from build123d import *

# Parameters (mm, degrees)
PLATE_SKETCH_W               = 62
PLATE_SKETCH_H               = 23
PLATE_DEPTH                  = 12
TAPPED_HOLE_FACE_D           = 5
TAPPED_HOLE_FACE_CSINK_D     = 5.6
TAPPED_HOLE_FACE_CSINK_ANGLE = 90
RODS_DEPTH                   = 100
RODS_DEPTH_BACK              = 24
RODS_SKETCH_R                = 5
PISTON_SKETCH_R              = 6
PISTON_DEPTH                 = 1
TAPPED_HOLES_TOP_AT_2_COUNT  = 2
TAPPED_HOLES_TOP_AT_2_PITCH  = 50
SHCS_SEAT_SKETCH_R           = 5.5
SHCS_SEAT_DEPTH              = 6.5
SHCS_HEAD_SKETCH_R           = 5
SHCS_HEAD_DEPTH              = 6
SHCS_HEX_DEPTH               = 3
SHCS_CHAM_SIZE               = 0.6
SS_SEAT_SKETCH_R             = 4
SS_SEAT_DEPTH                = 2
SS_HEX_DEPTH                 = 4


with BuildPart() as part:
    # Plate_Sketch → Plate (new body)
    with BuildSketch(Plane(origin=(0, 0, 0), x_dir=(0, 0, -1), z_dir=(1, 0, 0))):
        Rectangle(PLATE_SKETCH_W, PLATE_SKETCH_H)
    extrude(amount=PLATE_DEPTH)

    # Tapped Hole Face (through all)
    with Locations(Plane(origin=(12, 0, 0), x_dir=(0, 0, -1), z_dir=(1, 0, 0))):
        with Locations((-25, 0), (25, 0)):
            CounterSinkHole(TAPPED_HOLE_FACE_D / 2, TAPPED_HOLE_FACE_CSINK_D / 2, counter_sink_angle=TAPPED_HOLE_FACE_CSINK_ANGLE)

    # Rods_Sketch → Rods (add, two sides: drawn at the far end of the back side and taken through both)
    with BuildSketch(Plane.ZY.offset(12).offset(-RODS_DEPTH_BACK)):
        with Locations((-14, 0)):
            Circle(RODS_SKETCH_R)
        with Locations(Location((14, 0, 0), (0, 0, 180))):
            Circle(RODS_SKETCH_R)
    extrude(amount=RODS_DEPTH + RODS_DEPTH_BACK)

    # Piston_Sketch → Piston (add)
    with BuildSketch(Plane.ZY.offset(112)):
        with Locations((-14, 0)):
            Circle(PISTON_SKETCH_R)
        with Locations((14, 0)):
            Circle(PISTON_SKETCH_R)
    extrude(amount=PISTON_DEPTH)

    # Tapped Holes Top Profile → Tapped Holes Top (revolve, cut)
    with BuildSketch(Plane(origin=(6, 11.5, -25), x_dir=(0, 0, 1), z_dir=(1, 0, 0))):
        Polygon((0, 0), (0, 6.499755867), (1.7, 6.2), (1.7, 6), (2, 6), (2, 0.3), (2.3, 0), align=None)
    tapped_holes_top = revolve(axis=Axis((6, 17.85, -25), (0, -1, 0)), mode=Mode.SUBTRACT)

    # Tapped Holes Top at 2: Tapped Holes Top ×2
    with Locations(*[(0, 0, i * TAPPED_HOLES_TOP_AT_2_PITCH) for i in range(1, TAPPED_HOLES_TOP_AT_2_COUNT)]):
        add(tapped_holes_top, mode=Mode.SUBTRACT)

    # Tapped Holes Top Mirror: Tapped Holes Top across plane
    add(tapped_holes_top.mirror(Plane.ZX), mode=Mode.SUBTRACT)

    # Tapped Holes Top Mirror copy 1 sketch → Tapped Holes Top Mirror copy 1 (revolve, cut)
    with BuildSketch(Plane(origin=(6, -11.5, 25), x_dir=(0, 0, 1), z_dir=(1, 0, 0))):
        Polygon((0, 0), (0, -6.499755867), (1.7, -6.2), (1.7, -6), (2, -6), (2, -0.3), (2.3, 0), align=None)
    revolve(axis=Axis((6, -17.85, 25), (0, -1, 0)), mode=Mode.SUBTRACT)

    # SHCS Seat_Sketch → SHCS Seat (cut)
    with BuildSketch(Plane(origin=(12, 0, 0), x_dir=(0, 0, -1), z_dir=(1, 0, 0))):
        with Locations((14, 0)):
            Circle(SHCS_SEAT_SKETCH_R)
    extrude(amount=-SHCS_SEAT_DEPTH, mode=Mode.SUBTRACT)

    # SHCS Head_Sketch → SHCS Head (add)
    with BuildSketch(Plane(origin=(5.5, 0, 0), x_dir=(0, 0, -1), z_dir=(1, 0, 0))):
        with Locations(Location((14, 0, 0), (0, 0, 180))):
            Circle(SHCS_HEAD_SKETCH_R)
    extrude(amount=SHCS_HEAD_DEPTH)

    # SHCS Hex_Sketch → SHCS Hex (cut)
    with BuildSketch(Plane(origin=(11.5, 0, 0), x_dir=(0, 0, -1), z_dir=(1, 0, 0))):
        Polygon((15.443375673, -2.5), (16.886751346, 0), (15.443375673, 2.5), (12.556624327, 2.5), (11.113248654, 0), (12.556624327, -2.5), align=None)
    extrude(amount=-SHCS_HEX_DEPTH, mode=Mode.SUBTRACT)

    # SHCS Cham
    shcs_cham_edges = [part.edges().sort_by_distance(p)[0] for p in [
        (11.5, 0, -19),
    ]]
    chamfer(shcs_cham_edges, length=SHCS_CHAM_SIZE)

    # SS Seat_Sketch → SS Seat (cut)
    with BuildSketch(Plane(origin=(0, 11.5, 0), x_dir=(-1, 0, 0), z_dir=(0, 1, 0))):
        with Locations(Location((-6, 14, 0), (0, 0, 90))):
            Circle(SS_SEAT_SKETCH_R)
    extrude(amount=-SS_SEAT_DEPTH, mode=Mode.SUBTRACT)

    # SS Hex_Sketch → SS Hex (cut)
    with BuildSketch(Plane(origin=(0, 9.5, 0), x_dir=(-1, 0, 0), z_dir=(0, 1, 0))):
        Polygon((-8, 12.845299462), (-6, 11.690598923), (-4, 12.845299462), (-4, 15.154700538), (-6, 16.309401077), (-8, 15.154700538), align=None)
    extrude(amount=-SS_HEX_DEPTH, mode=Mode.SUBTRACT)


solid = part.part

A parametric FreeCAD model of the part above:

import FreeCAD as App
import Part
import Sketcher
from FreeCAD import Vector
Q = App.Units.Quantity


def edges_at(feature, points):
    """Names of the edges that pass closest to the given points."""
    edges = feature.Shape.Edges
    near = lambda p: min(range(len(edges)), key=lambda i: edges[i].distToShape(Part.Vertex(*p))[0])
    return sorted({f"Edge{near(p) + 1}" for p in points})

doc = App.newDocument("Part")
body = doc.addObject("PartDesign::Body", "Body")

# Sketch on YZ plane
sketch1 = doc.addObject("Sketcher::SketchObject", "Sketch")
body.addObject(sketch1)
sketch1.AttachmentSupport = (doc.YZ_Plane, [""])
sketch1.MapMode = "FlatFace"
sketch1.addGeometry([
    Part.LineSegment(Vector(12, 31, 0), Vector(-12, 31, 0)),
    Part.LineSegment(Vector(-12, 31, 0), Vector(-12, -31, 0)),
    Part.LineSegment(Vector(-12, -31, 0), Vector(12, -31, 0)),
    Part.LineSegment(Vector(12, -31, 0), Vector(12, 31, 0)),
], False)
sketch1.addConstraint([
    Sketcher.Constraint("Coincident", 0, 2, 1, 1),
    Sketcher.Constraint("Coincident", 1, 2, 2, 1),
    Sketcher.Constraint("Coincident", 2, 2, 3, 1),
    Sketcher.Constraint("Coincident", 3, 2, 0, 1),
    Sketcher.Constraint("Horizontal", 0),
    Sketcher.Constraint("Vertical", 1),
    Sketcher.Constraint("Horizontal", 2),
    Sketcher.Constraint("Vertical", 3),
    Sketcher.Constraint("Symmetric", 0, 2, 2, 2, -1, 1),
    Sketcher.Constraint("DistanceX", 0, 2, 0, 1, 23.0),
    Sketcher.Constraint("DistanceY", 1, 2, 1, 1, 62.0),
])
pad1 = doc.addObject("PartDesign::Pad", "Pad")
body.addObject(pad1)
pad1.Profile = sketch1
pad1.Length = 12

# Sketch on YZ plane
sketch2 = doc.addObject("Sketcher::SketchObject", "Sketch001")
body.addObject(sketch2)
sketch2.AttachmentSupport = (doc.YZ_Plane, [""])
sketch2.MapMode = "FlatFace"
sketch2.AttachmentOffset = App.Placement(Vector(0, 0, 12), App.Rotation())
sketch2.addGeometry([
    Part.Circle(Vector(0, 25, 0), Vector(0, 0, 1), 2.5),
    Part.Circle(Vector(0, -25, 0), Vector(0, 0, 1), 2.5),
], False)
sketch2.addConstraint([
    Sketcher.Constraint("Equal", 0, 1),
    Sketcher.Constraint("Symmetric", 0, 3, 1, 3, -1, 1),
    Sketcher.Constraint("PointOnObject", 0, 3, -2),
    Sketcher.Constraint("Diameter", 0, 5.0),
    Sketcher.Constraint("DistanceY", -1, 1, 0, 3, 25.0),
])
doc.recompute()
hole = doc.addObject("PartDesign::Hole", "Hole")
body.addObject(hole)
hole.Profile = sketch2
hole.ThreadType = "None"
hole.Diameter = 5
hole.DepthType = "ThroughAll"
hole.HoleCutType = "Countersink"
hole.HoleCutDiameter = 5.6
hole.HoleCutCountersinkAngle = 90

# Sketch on YZ plane
sketch3 = doc.addObject("Sketcher::SketchObject", "Sketch002")
body.addObject(sketch3)
sketch3.AttachmentSupport = (doc.YZ_Plane, [""])
sketch3.MapMode = "FlatFace"
sketch3.AttachmentOffset = App.Placement(Vector(0, 0, -12), App.Rotation())
sketch3.addGeometry([
    Part.Circle(Vector(0, -14, 0), Vector(0, 0, 1), 5),
    Part.Circle(Vector(0, 14, 0), Vector(0, 0, 1), 5),
], False)
sketch3.addConstraint([
    Sketcher.Constraint("Equal", 0, 1),
    Sketcher.Constraint("Symmetric", 0, 3, 1, 3, -1, 1),
    Sketcher.Constraint("PointOnObject", 0, 3, -2),
    Sketcher.Constraint("Diameter", 0, 10.0),
    Sketcher.Constraint("DistanceY", 0, 3, -1, 1, 14.0),
])
pad2 = doc.addObject("PartDesign::Pad", "Pad001")
body.addObject(pad2)
pad2.Profile = sketch3
pad2.Type = "TwoLengths"
pad2.Length = 100
pad2.Length2 = 24
pad2.Reversed = True

# Sketch on YZ plane
sketch4 = doc.addObject("Sketcher::SketchObject", "Sketch003")
body.addObject(sketch4)
sketch4.AttachmentSupport = (doc.YZ_Plane, [""])
sketch4.MapMode = "FlatFace"
sketch4.AttachmentOffset = App.Placement(Vector(0, 0, -112), App.Rotation())
sketch4.addGeometry([
    Part.Circle(Vector(0, -14, 0), Vector(0, 0, 1), 6),
    Part.Circle(Vector(0, 14, 0), Vector(0, 0, 1), 6),
], False)
sketch4.addConstraint([
    Sketcher.Constraint("Equal", 0, 1),
    Sketcher.Constraint("Symmetric", 0, 3, 1, 3, -1, 1),
    Sketcher.Constraint("PointOnObject", 0, 3, -2),
    Sketcher.Constraint("Diameter", 0, 12.0),
    Sketcher.Constraint("DistanceY", 0, 3, -1, 1, 14.0),
])
pad3 = doc.addObject("PartDesign::Pad", "Pad002")
body.addObject(pad3)
pad3.Profile = sketch4
pad3.Length = 1
pad3.Reversed = True

# Sketch on YZ plane
sketch5 = doc.addObject("Sketcher::SketchObject", "Sketch004")
body.addObject(sketch5)
sketch5.AttachmentSupport = (doc.YZ_Plane, [""])
sketch5.MapMode = "FlatFace"
sketch5.AttachmentOffset = App.Placement(Vector(0, 0, 6), App.Rotation())
sketch5.addGeometry([
    Part.LineSegment(Vector(5, -25, 0), Vector(11.5, -25, 0)),  # 0
    Part.LineSegment(Vector(11.5, -25, 0), Vector(11.5, -22.7, 0)),  # 1
    Part.LineSegment(Vector(11.5, -22.7, 0), Vector(11.2, -23, 0)),  # 2
    Part.LineSegment(Vector(11.2, -23, 0), Vector(5.5, -23, 0)),  # 3
    Part.LineSegment(Vector(5.5, -23, 0), Vector(5.5, -23.3, 0)),  # 4
    Part.LineSegment(Vector(5.5, -23.3, 0), Vector(5.3, -23.3, 0)),  # 5
    Part.LineSegment(Vector(5.3, -23.3, 0), Vector(5, -25, 0)),  # 6
], False)
sketch5.addGeometry(Part.LineSegment(Vector(11.5, -25, 0), Vector(5, -25, 0)), True)  # axis
sketch5.addConstraint([
    Sketcher.Constraint("Coincident", 0, 2, 1, 1),
    Sketcher.Constraint("Coincident", 1, 2, 2, 1),
    Sketcher.Constraint("Coincident", 2, 2, 3, 1),
    Sketcher.Constraint("Coincident", 3, 2, 4, 1),
    Sketcher.Constraint("Coincident", 4, 2, 5, 1),
    Sketcher.Constraint("Coincident", 5, 2, 6, 1),
    Sketcher.Constraint("Coincident", 6, 2, 0, 1),
    Sketcher.Constraint("Horizontal", 0),
    Sketcher.Constraint("Vertical", 1),
    Sketcher.Constraint("Horizontal", 3),
    Sketcher.Constraint("Vertical", 4),
    Sketcher.Constraint("Horizontal", 5),
    Sketcher.Constraint("Horizontal", 7),
    Sketcher.Constraint("Coincident", 7, 1, 0, 2),
    Sketcher.Constraint("Equal", 0, 7),
    Sketcher.Constraint("Angle", 2, Q("-135 deg")),
    Sketcher.Constraint("Angle", 6, Q("-100 deg")),
    Sketcher.Constraint("DistanceX", 3, 2, 3, 1, 5.7),
    Sketcher.Constraint("DistanceX", 5, 2, 5, 1, 0.2),
    Sketcher.Constraint("DistanceY", 1, 1, 1, 2, 2.3),
    Sketcher.Constraint("DistanceY", 4, 2, 4, 1, 0.3),
    Sketcher.Constraint("DistanceY", 0, 2, -1, 1, 25.0),
    Sketcher.Constraint("DistanceY", 2, 2, -1, 1, 23.0),
    Sketcher.Constraint("DistanceX", -1, 1, 0, 2, 11.5),
])
groove = doc.addObject("PartDesign::Groove", "Groove")
body.addObject(groove)
groove.Profile = sketch5
groove.ReferenceAxis = (sketch5, ["Axis0"])
groove.Angle = 360
doc.recompute()

linearpattern = doc.addObject("PartDesign::LinearPattern", "LinearPattern")
body.addObject(linearpattern)
linearpattern.Originals = [groove]
linearpattern.Direction = (doc.Z_Axis, [""])
linearpattern.Mode = "offset"
linearpattern.Offset = 50
linearpattern.Occurrences = 2
body.Tip = linearpattern
doc.recompute()

mirrored = doc.addObject("PartDesign::Mirrored", "Mirrored")
body.addObject(mirrored)
mirrored.Originals = [groove]
mirrored.MirrorPlane = (doc.XZ_Plane, [""])
body.Tip = mirrored

# Sketch on YZ plane
sketch6 = doc.addObject("Sketcher::SketchObject", "Sketch005")
body.addObject(sketch6)
sketch6.AttachmentSupport = (doc.YZ_Plane, [""])
sketch6.MapMode = "FlatFace"
sketch6.AttachmentOffset = App.Placement(Vector(0, 0, 6), App.Rotation())
sketch6.addGeometry([
    Part.LineSegment(Vector(-11.5, 25, 0), Vector(-5, 25, 0)),  # 0
    Part.LineSegment(Vector(-5, 25, 0), Vector(-5.3, 26.7, 0)),  # 1
    Part.LineSegment(Vector(-5.3, 26.7, 0), Vector(-5.5, 26.7, 0)),  # 2
    Part.LineSegment(Vector(-5.5, 26.7, 0), Vector(-5.5, 27, 0)),  # 3
    Part.LineSegment(Vector(-5.5, 27, 0), Vector(-11.2, 27, 0)),  # 4
    Part.LineSegment(Vector(-11.2, 27, 0), Vector(-11.5, 27.3, 0)),  # 5
    Part.LineSegment(Vector(-11.5, 27.3, 0), Vector(-11.5, 25, 0)),  # 6
], False)
sketch6.addGeometry(Part.LineSegment(Vector(-5, 25, 0), Vector(-11.5, 25, 0)), True)  # axis
sketch6.addConstraint([
    Sketcher.Constraint("Coincident", 0, 2, 1, 1),
    Sketcher.Constraint("Coincident", 1, 2, 2, 1),
    Sketcher.Constraint("Coincident", 2, 2, 3, 1),
    Sketcher.Constraint("Coincident", 3, 2, 4, 1),
    Sketcher.Constraint("Coincident", 4, 2, 5, 1),
    Sketcher.Constraint("Coincident", 5, 2, 6, 1),
    Sketcher.Constraint("Coincident", 6, 2, 0, 1),
    Sketcher.Constraint("Horizontal", 0),
    Sketcher.Constraint("Horizontal", 2),
    Sketcher.Constraint("Vertical", 3),
    Sketcher.Constraint("Horizontal", 4),
    Sketcher.Constraint("Vertical", 6),
    Sketcher.Constraint("Horizontal", 7),
    Sketcher.Constraint("Coincident", 7, 1, 0, 2),
    Sketcher.Constraint("Vertical", 5, 2, 7, 2),
    Sketcher.Constraint("Angle", 1, Q("100 deg")),
    Sketcher.Constraint("Angle", 5, Q("135 deg")),
    Sketcher.Constraint("DistanceX", 2, 2, 2, 1, 0.2),
    Sketcher.Constraint("DistanceX", 4, 2, 4, 1, 5.7),
    Sketcher.Constraint("DistanceY", 3, 1, 3, 2, 0.3),
    Sketcher.Constraint("DistanceY", 6, 2, 6, 1, 2.3),
    Sketcher.Constraint("DistanceY", -1, 1, 0, 2, 25.0),
    Sketcher.Constraint("DistanceY", -1, 1, 3, 2, 27.0),
    Sketcher.Constraint("DistanceX", 1, 2, -1, 1, 5.3),
])
groove2 = doc.addObject("PartDesign::Groove", "Groove001")
body.addObject(groove2)
groove2.Profile = sketch6
groove2.ReferenceAxis = (sketch6, ["Axis0"])
groove2.Angle = 360

# Sketch on YZ plane
sketch7 = doc.addObject("Sketcher::SketchObject", "Sketch006")
body.addObject(sketch7)
sketch7.AttachmentSupport = (doc.YZ_Plane, [""])
sketch7.MapMode = "FlatFace"
sketch7.AttachmentOffset = App.Placement(Vector(0, 0, 12), App.Rotation())
sketch7.addGeometry(Part.Circle(Vector(0, -14, 0), Vector(0, 0, 1), 6), False)
sketch7.addConstraint([
    Sketcher.Constraint("PointOnObject", 0, 3, -2),
    Sketcher.Constraint("Diameter", 0, 11.0),
    Sketcher.Constraint("DistanceY", 0, 3, -1, 1, 14.0),
])
pocket1 = doc.addObject("PartDesign::Pocket", "Pocket")
body.addObject(pocket1)
pocket1.Profile = sketch7
pocket1.Length = 6.5

# Sketch on YZ plane
sketch8 = doc.addObject("Sketcher::SketchObject", "Sketch007")
body.addObject(sketch8)
sketch8.AttachmentSupport = (doc.YZ_Plane, [""])
sketch8.MapMode = "FlatFace"
sketch8.AttachmentOffset = App.Placement(Vector(0, 0, 5.5), App.Rotation())
sketch8.addGeometry(Part.Circle(Vector(0, -14, 0), Vector(0, 0, 1), 5), False)
sketch8.addConstraint([
    Sketcher.Constraint("PointOnObject", 0, 3, -2),
    Sketcher.Constraint("Diameter", 0, 10.0),
    Sketcher.Constraint("DistanceY", 0, 3, -1, 1, 14.0),
])
pad4 = doc.addObject("PartDesign::Pad", "Pad003")
body.addObject(pad4)
pad4.Profile = sketch8
pad4.Length = 6

# Sketch on YZ plane
sketch9 = doc.addObject("Sketcher::SketchObject", "Sketch008")
body.addObject(sketch9)
sketch9.AttachmentSupport = (doc.YZ_Plane, [""])
sketch9.MapMode = "FlatFace"
sketch9.AttachmentOffset = App.Placement(Vector(0, 0, 11.5), App.Rotation())
sketch9.addGeometry([
    Part.LineSegment(Vector(-2.5, -15.4, 0), Vector(0, -16.9, 0)),  # 0
    Part.LineSegment(Vector(0, -16.9, 0), Vector(2.5, -15.4, 0)),  # 1
    Part.LineSegment(Vector(2.5, -15.4, 0), Vector(2.5, -12.6, 0)),  # 2
    Part.LineSegment(Vector(2.5, -12.6, 0), Vector(0, -11.1, 0)),  # 3
    Part.LineSegment(Vector(0, -11.1, 0), Vector(-2.5, -12.6, 0)),  # 4
    Part.LineSegment(Vector(-2.5, -12.6, 0), Vector(-2.5, -15.4, 0)),  # 5
], False)
sketch9.addConstraint([
    Sketcher.Constraint("Coincident", 0, 2, 1, 1),
    Sketcher.Constraint("Coincident", 1, 2, 2, 1),
    Sketcher.Constraint("Coincident", 2, 2, 3, 1),
    Sketcher.Constraint("Coincident", 3, 2, 4, 1),
    Sketcher.Constraint("Coincident", 4, 2, 5, 1),
    Sketcher.Constraint("Coincident", 5, 2, 0, 1),
    Sketcher.Constraint("Vertical", 2),
    Sketcher.Constraint("Vertical", 5),
    Sketcher.Constraint("Symmetric", 2, 2, 4, 2, -2),
    Sketcher.Constraint("PointOnObject", 0, 2, -2),
    Sketcher.Constraint("PointOnObject", 3, 2, -2),
    Sketcher.Constraint("Parallel", 0, 3),
    Sketcher.Constraint("Parallel", 1, 4),
    Sketcher.Constraint("Angle", 0, Q("-30 deg")),
    Sketcher.Constraint("DistanceX", 4, 2, 2, 2, 5.0),
    Sketcher.Constraint("DistanceY", 2, 1, 2, 2, 2.886751),
    Sketcher.Constraint("DistanceY", 0, 2, -1, 1, 16.886751),
])
pocket2 = doc.addObject("PartDesign::Pocket", "Pocket001")
body.addObject(pocket2)
pocket2.Profile = sketch9
pocket2.Length = 3
doc.recompute()

chamfer = doc.addObject("PartDesign::Chamfer", "Chamfer")
body.addObject(chamfer)
chamfer.Base = (pocket2, edges_at(pocket2, [(11.5, 0, -19)]))
chamfer.Size = 0.6

# Sketch on XZ plane
sketch10 = doc.addObject("Sketcher::SketchObject", "Sketch009")
body.addObject(sketch10)
sketch10.AttachmentSupport = (doc.XZ_Plane, [""])
sketch10.MapMode = "FlatFace"
sketch10.AttachmentOffset = App.Placement(Vector(0, 0, -11.5), App.Rotation())
sketch10.addGeometry(Part.Circle(Vector(6, 14, 0), Vector(0, 0, 1), 4), False)
sketch10.addConstraint([
    Sketcher.Constraint("Diameter", 0, 8.0),
    Sketcher.Constraint("DistanceX", -1, 1, 0, 3, 6.0),
    Sketcher.Constraint("DistanceY", -1, 1, 0, 3, 14.0),
])
pocket3 = doc.addObject("PartDesign::Pocket", "Pocket002")
body.addObject(pocket3)
pocket3.Profile = sketch10
pocket3.Length = 2
pocket3.Reversed = True

# Sketch on XZ plane
sketch11 = doc.addObject("Sketcher::SketchObject", "Sketch010")
body.addObject(sketch11)
sketch11.AttachmentSupport = (doc.XZ_Plane, [""])
sketch11.MapMode = "FlatFace"
sketch11.AttachmentOffset = App.Placement(Vector(0, 0, -9.5), App.Rotation())
sketch11.addGeometry([
    Part.LineSegment(Vector(8, 12.8, 0), Vector(6, 11.7, 0)),  # 0
    Part.LineSegment(Vector(6, 11.7, 0), Vector(4, 12.8, 0)),  # 1
    Part.LineSegment(Vector(4, 12.8, 0), Vector(4, 15.2, 0)),  # 2
    Part.LineSegment(Vector(4, 15.2, 0), Vector(6, 16.3, 0)),  # 3
    Part.LineSegment(Vector(6, 16.3, 0), Vector(8, 15.2, 0)),  # 4
    Part.LineSegment(Vector(8, 15.2, 0), Vector(8, 12.8, 0)),  # 5
], False)
sketch11.addConstraint([
    Sketcher.Constraint("Coincident", 0, 2, 1, 1),
    Sketcher.Constraint("Coincident", 1, 2, 2, 1),
    Sketcher.Constraint("Coincident", 2, 2, 3, 1),
    Sketcher.Constraint("Coincident", 3, 2, 4, 1),
    Sketcher.Constraint("Coincident", 4, 2, 5, 1),
    Sketcher.Constraint("Coincident", 5, 2, 0, 1),
    Sketcher.Constraint("Vertical", 2),
    Sketcher.Constraint("Vertical", 5),
    Sketcher.Constraint("Parallel", 0, 3),
    Sketcher.Constraint("Parallel", 1, 4),
    Sketcher.Constraint("Horizontal", 2, 2, 4, 2),
    Sketcher.Constraint("Horizontal", 1, 2, 5, 2),
    Sketcher.Constraint("Vertical", 0, 2, 3, 2),
    Sketcher.Constraint("Angle", 0, Q("-150 deg")),
    Sketcher.Constraint("DistanceX", -1, 1, 0, 2, 6.0),
    Sketcher.Constraint("DistanceX", -1, 1, 1, 2, 4.0),
    Sketcher.Constraint("DistanceY", 2, 1, 2, 2, 2.309401),
    Sketcher.Constraint("DistanceY", -1, 1, 0, 2, 11.690599),
])
pocket4 = doc.addObject("PartDesign::Pocket", "Pocket003")
body.addObject(pocket4)
pocket4.Profile = sketch11
pocket4.Length = 4
pocket4.Reversed = True

doc.recompute()
